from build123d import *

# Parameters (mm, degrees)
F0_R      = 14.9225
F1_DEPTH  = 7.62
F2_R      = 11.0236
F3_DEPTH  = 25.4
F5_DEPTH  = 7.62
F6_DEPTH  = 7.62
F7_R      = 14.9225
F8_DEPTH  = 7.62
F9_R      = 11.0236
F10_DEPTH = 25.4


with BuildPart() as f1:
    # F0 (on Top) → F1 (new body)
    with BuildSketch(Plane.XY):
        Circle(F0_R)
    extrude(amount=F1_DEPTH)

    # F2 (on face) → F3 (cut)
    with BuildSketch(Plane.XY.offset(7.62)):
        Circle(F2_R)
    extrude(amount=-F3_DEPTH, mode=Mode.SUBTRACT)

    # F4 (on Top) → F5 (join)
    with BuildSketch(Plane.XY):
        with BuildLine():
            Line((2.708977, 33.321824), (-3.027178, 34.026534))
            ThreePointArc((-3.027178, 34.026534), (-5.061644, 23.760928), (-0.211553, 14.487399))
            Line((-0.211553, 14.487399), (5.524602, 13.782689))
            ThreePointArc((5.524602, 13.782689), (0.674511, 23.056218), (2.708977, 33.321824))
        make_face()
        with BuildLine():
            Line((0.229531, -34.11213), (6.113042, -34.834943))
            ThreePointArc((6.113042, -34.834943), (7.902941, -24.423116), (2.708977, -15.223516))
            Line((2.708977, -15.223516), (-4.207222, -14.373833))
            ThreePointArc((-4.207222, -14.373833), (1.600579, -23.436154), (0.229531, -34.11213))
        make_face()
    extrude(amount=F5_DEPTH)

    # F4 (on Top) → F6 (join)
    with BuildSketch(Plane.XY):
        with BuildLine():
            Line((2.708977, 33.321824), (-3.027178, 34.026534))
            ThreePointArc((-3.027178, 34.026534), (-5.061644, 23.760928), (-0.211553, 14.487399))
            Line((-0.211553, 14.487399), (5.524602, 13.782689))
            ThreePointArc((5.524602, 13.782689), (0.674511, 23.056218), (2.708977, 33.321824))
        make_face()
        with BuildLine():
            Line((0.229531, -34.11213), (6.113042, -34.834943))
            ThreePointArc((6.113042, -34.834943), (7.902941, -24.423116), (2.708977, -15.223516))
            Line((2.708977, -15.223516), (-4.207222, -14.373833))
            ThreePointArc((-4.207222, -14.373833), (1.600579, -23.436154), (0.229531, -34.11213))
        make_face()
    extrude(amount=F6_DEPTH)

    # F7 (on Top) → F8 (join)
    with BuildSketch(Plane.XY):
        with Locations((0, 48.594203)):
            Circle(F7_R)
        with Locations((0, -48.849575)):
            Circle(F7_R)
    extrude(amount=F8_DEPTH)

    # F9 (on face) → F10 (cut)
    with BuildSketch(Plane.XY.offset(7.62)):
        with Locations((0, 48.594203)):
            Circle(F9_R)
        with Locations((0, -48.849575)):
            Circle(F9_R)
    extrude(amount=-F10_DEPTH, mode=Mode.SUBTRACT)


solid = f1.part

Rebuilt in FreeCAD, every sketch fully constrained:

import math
import FreeCAD as App
import Part
import Sketcher
from FreeCAD import Vector
Q = App.Units.Quantity

doc = App.newDocument("Part")
params = doc.addObject("Spreadsheet::Sheet", "Params")
for row, (alias, value) in enumerate([
    ("sketch1_diameter", "1.175 in"),
    ("pad1_length", "0.3 in"),
    ("sketch2_diameter", "0.868 in"),
    ("pocket1_length", "1 in"),
    ("pad2_length", "0.3 in"),
    ("pad3_length", "0.3 in"),
    ("sketch5_diameter", "1.175 in"),
    ("pad4_length", "0.3 in"),
    ("sketch6_diameter", "0.868 in"),
    ("pocket2_length", "1 in"),
], start=1):
    params.set(f"A{row}", alias)
    params.set(f"B{row}", "=" + value)
    params.setAlias(f"B{row}", alias)

body = doc.addObject("PartDesign::Body", "Body")

sketch1 = body.newObject("Sketcher::SketchObject", "Sketch")
sketch1.AttachmentSupport = (doc.getObject("XY_Plane"), [""])
sketch1.MapMode = "FlatFace"
sketch1.addGeometry(Part.Circle(Vector(0, 0, 0), Vector(0, 0, 1), 15), False)
sketch1.addConstraint([
    Sketcher.Constraint("Coincident", 0, 3, -1, 1),
    Sketcher.Constraint("Diameter", 0, Q("1.175 in")),
])
sketch1.setExpression("Constraints[1]", "Params.sketch1_diameter")
pad1 = body.newObject("PartDesign::Pad", "Pad")
pad1.Profile = sketch1
pad1.setExpression("Length", "Params.pad1_length")

sketch2 = body.newObject("Sketcher::SketchObject", "Sketch001")
sketch2.AttachmentSupport = (doc.getObject("XY_Plane"), [""])
sketch2.MapMode = "FlatFace"
sketch2.AttachmentOffset = App.Placement(Vector(0, 0, 0.3 * 25.4), App.Rotation())
sketch2.addGeometry(Part.Circle(Vector(0, 0, 0), Vector(0, 0, 1), 11), False)
sketch2.addConstraint([
    Sketcher.Constraint("Coincident", 0, 3, -1, 1),
    Sketcher.Constraint("Diameter", 0, Q("0.868 in")),
])
sketch2.setExpression("Constraints[1]", "Params.sketch2_diameter")
pocket1 = body.newObject("PartDesign::Pocket", "Pocket")
pocket1.Profile = sketch2
pocket1.setExpression("Length", "Params.pocket1_length")

sketch3 = body.newObject("Sketcher::SketchObject", "Sketch002")
sketch3.AttachmentSupport = (doc.getObject("XY_Plane"), [""])
sketch3.MapMode = "FlatFace"
sketch3.addGeometry([
    Part.LineSegment(Vector(3, 33, 0), Vector(-3, 34, 0)),
    Part.ArcOfCircle(Part.Circle(Vector(11, 26, 0), Vector(0, 0, 1), 16), math.radians(149), math.radians(227)),
    Part.LineSegment(Vector(0, 14, 0), Vector(6, 14, 0)),
    Part.ArcOfCircle(Part.Circle(Vector(16, 25, 0), Vector(0, 0, 1), 16), math.radians(149), math.radians(227)),
    Part.LineSegment(Vector(0, -34, 0), Vector(6, -35, 0)),
    Part.ArcOfCircle(Part.Circle(Vector(-8, -27, 0), Vector(0, 0, 1), 16), math.radians(-29), math.radians(49)),
    Part.LineSegment(Vector(3, -15, 0), Vector(-4, -14, 0)),
    Part.ArcOfCircle(Part.Circle(Vector(-14, -27, 0), Vector(0, 0, 1), 16), math.radians(-27), math.radians(53)),
], False)
sketch3.addConstraint([
    Sketcher.Constraint("Coincident", 0, 2, 1, 1),
    Sketcher.Constraint("Coincident", 1, 2, 2, 1),
    Sketcher.Constraint("Coincident", 2, 2, 3, 2),
    Sketcher.Constraint("Coincident", 3, 1, 0, 1),
    Sketcher.Constraint("Coincident", 4, 2, 5, 1),
    Sketcher.Constraint("Coincident", 5, 2, 6, 1),
    Sketcher.Constraint("Coincident", 6, 2, 7, 2),
    Sketcher.Constraint("Coincident", 7, 1, 4, 1),
    Sketcher.Constraint("Equal", 1, 3),
    Sketcher.Constraint("Equal", 3, 5),
    Sketcher.Constraint("Parallel", 0, 2),
    Sketcher.Constraint("Parallel", 2, 4),
    Sketcher.Constraint("Parallel", 4, 6),
    Sketcher.Constraint("Vertical", 3, 1, 5, 2),
    Sketcher.Constraint("Equal", 0, 2),
    Sketcher.Constraint("DistanceX", 1, 2, 4, 2, Q("0.2489998 in")),
    Sketcher.Constraint("Radius", 1, Q("15.745676 mm")),
    Sketcher.Constraint("Radius", 7, Q("15.745673 mm")),
    Sketcher.Constraint("DistanceY", -1, 1, 3, 3, Q("25.302001 mm")),
    Sketcher.Constraint("DistanceY", -1, 1, 1, 2, Q("14.487399 mm")),
    Sketcher.Constraint("DistanceX", -1, 1, 2, 2, Q("5.524602 mm")),
    Sketcher.Constraint("DistanceY", 7, 3, 1, 3, Q("52.896 mm")),
    Sketcher.Constraint("DistanceY", 5, 3, 5, 2, Q("11.8924 mm")),
    Sketcher.Constraint("DistanceX", 6, 2, 5, 2, Q("6.916199 mm")),
    Sketcher.Constraint("Distance", 0, Q("5.779281 mm")),
    Sketcher.Constraint("DistanceY", -1, 1, 1, 3, Q("26.006711 mm")),
    Sketcher.Constraint("DistanceX", 7, 3, -1, 1, Q("13.76178 mm")),
    Sketcher.Constraint("DistanceX", 0, 2, -1, 1, Q("3.027178 mm")),
])
pad2 = body.newObject("PartDesign::Pad", "Pad001")
pad2.Profile = sketch3
pad2.setExpression("Length", "Params.pad2_length")

sketch4 = body.newObject("Sketcher::SketchObject", "Sketch003")
sketch4.AttachmentSupport = (doc.getObject("XY_Plane"), [""])
sketch4.MapMode = "FlatFace"
sketch4.addGeometry([
    Part.LineSegment(Vector(3, 33, 0), Vector(-3, 34, 0)),
    Part.ArcOfCircle(Part.Circle(Vector(11, 26, 0), Vector(0, 0, 1), 16), math.radians(149), math.radians(227)),
    Part.LineSegment(Vector(0, 14, 0), Vector(6, 14, 0)),
    Part.ArcOfCircle(Part.Circle(Vector(16, 25, 0), Vector(0, 0, 1), 16), math.radians(149), math.radians(227)),
    Part.LineSegment(Vector(0, -34, 0), Vector(6, -35, 0)),
    Part.ArcOfCircle(Part.Circle(Vector(-8, -27, 0), Vector(0, 0, 1), 16), math.radians(-29), math.radians(49)),
    Part.LineSegment(Vector(3, -15, 0), Vector(-4, -14, 0)),
    Part.ArcOfCircle(Part.Circle(Vector(-14, -27, 0), Vector(0, 0, 1), 16), math.radians(-27), math.radians(53)),
], False)
sketch4.addConstraint([
    Sketcher.Constraint("Coincident", 0, 2, 1, 1),
    Sketcher.Constraint("Coincident", 1, 2, 2, 1),
    Sketcher.Constraint("Coincident", 2, 2, 3, 2),
    Sketcher.Constraint("Coincident", 3, 1, 0, 1),
    Sketcher.Constraint("Coincident", 4, 2, 5, 1),
    Sketcher.Constraint("Coincident", 5, 2, 6, 1),
    Sketcher.Constraint("Coincident", 6, 2, 7, 2),
    Sketcher.Constraint("Coincident", 7, 1, 4, 1),
    Sketcher.Constraint("Equal", 1, 3),
    Sketcher.Constraint("Equal", 3, 5),
    Sketcher.Constraint("Parallel", 0, 2),
    Sketcher.Constraint("Parallel", 2, 4),
    Sketcher.Constraint("Parallel", 4, 6),
    Sketcher.Constraint("Vertical", 3, 1, 5, 2),
    Sketcher.Constraint("Equal", 0, 2),
    Sketcher.Constraint("DistanceX", 1, 2, 4, 2, Q("0.2489998 in")),
    Sketcher.Constraint("Radius", 1, Q("15.745676 mm")),
    Sketcher.Constraint("Radius", 7, Q("15.745673 mm")),
    Sketcher.Constraint("DistanceY", -1, 1, 3, 3, Q("25.302001 mm")),
    Sketcher.Constraint("DistanceY", -1, 1, 1, 2, Q("14.487399 mm")),
    Sketcher.Constraint("DistanceX", -1, 1, 2, 2, Q("5.524602 mm")),
    Sketcher.Constraint("DistanceY", 7, 3, 1, 3, Q("52.896 mm")),
    Sketcher.Constraint("DistanceY", 5, 3, 5, 2, Q("11.8924 mm")),
    Sketcher.Constraint("DistanceX", 6, 2, 5, 2, Q("6.916199 mm")),
    Sketcher.Constraint("Distance", 0, Q("5.779281 mm")),
    Sketcher.Constraint("DistanceY", -1, 1, 1, 3, Q("26.006711 mm")),
    Sketcher.Constraint("DistanceX", 7, 3, -1, 1, Q("13.76178 mm")),
    Sketcher.Constraint("DistanceX", 0, 2, -1, 1, Q("3.027178 mm")),
])
pad3 = body.newObject("PartDesign::Pad", "Pad002")
pad3.Profile = sketch4
pad3.setExpression("Length", "Params.pad3_length")

sketch5 = body.newObject("Sketcher::SketchObject", "Sketch004")
sketch5.AttachmentSupport = (doc.getObject("XY_Plane"), [""])
sketch5.MapMode = "FlatFace"
sketch5.addGeometry([
    Part.Circle(Vector(0, 49, 0), Vector(0, 0, 1), 15),
    Part.Circle(Vector(0, -49, 0), Vector(0, 0, 1), 15),
], False)
sketch5.addConstraint([
    Sketcher.Constraint("Equal", 0, 1),
    Sketcher.Constraint("PointOnObject", 0, 3, -2),
    Sketcher.Constraint("PointOnObject", 1, 3, -2),
    Sketcher.Constraint("Diameter", 0, Q("1.175 in")),
    Sketcher.Constraint("DistanceY", 1, 3, 0, 3, Q("97.443778 mm")),
    Sketcher.Constraint("DistanceY", -1, 1, 0, 3, Q("48.594203 mm")),
])
sketch5.setExpression("Constraints[3]", "Params.sketch5_diameter")
pad4 = body.newObject("PartDesign::Pad", "Pad003")
pad4.Profile = sketch5
pad4.setExpression("Length", "Params.pad4_length")

sketch6 = body.newObject("Sketcher::SketchObject", "Sketch005")
sketch6.AttachmentSupport = (doc.getObject("XY_Plane"), [""])
sketch6.MapMode = "FlatFace"
sketch6.AttachmentOffset = App.Placement(Vector(0, 0, 0.3 * 25.4), App.Rotation())
sketch6.addGeometry([
    Part.Circle(Vector(0, 49, 0), Vector(0, 0, 1), 11),
    Part.Circle(Vector(0, -49, 0), Vector(0, 0, 1), 11),
], False)
sketch6.addConstraint([
    Sketcher.Constraint("Equal", 0, 1),
    Sketcher.Constraint("PointOnObject", 0, 3, -2),
    Sketcher.Constraint("PointOnObject", 1, 3, -2),
    Sketcher.Constraint("Diameter", 0, Q("0.868 in")),
    Sketcher.Constraint("DistanceY", 1, 3, 0, 3, Q("97.443778 mm")),
    Sketcher.Constraint("DistanceY", -1, 1, 0, 3, Q("48.594203 mm")),
])
sketch6.setExpression("Constraints[3]", "Params.sketch6_diameter")
pocket2 = body.newObject("PartDesign::Pocket", "Pocket001")
pocket2.Profile = sketch6
pocket2.setExpression("Length", "Params.pocket2_length")

doc.recompute()
